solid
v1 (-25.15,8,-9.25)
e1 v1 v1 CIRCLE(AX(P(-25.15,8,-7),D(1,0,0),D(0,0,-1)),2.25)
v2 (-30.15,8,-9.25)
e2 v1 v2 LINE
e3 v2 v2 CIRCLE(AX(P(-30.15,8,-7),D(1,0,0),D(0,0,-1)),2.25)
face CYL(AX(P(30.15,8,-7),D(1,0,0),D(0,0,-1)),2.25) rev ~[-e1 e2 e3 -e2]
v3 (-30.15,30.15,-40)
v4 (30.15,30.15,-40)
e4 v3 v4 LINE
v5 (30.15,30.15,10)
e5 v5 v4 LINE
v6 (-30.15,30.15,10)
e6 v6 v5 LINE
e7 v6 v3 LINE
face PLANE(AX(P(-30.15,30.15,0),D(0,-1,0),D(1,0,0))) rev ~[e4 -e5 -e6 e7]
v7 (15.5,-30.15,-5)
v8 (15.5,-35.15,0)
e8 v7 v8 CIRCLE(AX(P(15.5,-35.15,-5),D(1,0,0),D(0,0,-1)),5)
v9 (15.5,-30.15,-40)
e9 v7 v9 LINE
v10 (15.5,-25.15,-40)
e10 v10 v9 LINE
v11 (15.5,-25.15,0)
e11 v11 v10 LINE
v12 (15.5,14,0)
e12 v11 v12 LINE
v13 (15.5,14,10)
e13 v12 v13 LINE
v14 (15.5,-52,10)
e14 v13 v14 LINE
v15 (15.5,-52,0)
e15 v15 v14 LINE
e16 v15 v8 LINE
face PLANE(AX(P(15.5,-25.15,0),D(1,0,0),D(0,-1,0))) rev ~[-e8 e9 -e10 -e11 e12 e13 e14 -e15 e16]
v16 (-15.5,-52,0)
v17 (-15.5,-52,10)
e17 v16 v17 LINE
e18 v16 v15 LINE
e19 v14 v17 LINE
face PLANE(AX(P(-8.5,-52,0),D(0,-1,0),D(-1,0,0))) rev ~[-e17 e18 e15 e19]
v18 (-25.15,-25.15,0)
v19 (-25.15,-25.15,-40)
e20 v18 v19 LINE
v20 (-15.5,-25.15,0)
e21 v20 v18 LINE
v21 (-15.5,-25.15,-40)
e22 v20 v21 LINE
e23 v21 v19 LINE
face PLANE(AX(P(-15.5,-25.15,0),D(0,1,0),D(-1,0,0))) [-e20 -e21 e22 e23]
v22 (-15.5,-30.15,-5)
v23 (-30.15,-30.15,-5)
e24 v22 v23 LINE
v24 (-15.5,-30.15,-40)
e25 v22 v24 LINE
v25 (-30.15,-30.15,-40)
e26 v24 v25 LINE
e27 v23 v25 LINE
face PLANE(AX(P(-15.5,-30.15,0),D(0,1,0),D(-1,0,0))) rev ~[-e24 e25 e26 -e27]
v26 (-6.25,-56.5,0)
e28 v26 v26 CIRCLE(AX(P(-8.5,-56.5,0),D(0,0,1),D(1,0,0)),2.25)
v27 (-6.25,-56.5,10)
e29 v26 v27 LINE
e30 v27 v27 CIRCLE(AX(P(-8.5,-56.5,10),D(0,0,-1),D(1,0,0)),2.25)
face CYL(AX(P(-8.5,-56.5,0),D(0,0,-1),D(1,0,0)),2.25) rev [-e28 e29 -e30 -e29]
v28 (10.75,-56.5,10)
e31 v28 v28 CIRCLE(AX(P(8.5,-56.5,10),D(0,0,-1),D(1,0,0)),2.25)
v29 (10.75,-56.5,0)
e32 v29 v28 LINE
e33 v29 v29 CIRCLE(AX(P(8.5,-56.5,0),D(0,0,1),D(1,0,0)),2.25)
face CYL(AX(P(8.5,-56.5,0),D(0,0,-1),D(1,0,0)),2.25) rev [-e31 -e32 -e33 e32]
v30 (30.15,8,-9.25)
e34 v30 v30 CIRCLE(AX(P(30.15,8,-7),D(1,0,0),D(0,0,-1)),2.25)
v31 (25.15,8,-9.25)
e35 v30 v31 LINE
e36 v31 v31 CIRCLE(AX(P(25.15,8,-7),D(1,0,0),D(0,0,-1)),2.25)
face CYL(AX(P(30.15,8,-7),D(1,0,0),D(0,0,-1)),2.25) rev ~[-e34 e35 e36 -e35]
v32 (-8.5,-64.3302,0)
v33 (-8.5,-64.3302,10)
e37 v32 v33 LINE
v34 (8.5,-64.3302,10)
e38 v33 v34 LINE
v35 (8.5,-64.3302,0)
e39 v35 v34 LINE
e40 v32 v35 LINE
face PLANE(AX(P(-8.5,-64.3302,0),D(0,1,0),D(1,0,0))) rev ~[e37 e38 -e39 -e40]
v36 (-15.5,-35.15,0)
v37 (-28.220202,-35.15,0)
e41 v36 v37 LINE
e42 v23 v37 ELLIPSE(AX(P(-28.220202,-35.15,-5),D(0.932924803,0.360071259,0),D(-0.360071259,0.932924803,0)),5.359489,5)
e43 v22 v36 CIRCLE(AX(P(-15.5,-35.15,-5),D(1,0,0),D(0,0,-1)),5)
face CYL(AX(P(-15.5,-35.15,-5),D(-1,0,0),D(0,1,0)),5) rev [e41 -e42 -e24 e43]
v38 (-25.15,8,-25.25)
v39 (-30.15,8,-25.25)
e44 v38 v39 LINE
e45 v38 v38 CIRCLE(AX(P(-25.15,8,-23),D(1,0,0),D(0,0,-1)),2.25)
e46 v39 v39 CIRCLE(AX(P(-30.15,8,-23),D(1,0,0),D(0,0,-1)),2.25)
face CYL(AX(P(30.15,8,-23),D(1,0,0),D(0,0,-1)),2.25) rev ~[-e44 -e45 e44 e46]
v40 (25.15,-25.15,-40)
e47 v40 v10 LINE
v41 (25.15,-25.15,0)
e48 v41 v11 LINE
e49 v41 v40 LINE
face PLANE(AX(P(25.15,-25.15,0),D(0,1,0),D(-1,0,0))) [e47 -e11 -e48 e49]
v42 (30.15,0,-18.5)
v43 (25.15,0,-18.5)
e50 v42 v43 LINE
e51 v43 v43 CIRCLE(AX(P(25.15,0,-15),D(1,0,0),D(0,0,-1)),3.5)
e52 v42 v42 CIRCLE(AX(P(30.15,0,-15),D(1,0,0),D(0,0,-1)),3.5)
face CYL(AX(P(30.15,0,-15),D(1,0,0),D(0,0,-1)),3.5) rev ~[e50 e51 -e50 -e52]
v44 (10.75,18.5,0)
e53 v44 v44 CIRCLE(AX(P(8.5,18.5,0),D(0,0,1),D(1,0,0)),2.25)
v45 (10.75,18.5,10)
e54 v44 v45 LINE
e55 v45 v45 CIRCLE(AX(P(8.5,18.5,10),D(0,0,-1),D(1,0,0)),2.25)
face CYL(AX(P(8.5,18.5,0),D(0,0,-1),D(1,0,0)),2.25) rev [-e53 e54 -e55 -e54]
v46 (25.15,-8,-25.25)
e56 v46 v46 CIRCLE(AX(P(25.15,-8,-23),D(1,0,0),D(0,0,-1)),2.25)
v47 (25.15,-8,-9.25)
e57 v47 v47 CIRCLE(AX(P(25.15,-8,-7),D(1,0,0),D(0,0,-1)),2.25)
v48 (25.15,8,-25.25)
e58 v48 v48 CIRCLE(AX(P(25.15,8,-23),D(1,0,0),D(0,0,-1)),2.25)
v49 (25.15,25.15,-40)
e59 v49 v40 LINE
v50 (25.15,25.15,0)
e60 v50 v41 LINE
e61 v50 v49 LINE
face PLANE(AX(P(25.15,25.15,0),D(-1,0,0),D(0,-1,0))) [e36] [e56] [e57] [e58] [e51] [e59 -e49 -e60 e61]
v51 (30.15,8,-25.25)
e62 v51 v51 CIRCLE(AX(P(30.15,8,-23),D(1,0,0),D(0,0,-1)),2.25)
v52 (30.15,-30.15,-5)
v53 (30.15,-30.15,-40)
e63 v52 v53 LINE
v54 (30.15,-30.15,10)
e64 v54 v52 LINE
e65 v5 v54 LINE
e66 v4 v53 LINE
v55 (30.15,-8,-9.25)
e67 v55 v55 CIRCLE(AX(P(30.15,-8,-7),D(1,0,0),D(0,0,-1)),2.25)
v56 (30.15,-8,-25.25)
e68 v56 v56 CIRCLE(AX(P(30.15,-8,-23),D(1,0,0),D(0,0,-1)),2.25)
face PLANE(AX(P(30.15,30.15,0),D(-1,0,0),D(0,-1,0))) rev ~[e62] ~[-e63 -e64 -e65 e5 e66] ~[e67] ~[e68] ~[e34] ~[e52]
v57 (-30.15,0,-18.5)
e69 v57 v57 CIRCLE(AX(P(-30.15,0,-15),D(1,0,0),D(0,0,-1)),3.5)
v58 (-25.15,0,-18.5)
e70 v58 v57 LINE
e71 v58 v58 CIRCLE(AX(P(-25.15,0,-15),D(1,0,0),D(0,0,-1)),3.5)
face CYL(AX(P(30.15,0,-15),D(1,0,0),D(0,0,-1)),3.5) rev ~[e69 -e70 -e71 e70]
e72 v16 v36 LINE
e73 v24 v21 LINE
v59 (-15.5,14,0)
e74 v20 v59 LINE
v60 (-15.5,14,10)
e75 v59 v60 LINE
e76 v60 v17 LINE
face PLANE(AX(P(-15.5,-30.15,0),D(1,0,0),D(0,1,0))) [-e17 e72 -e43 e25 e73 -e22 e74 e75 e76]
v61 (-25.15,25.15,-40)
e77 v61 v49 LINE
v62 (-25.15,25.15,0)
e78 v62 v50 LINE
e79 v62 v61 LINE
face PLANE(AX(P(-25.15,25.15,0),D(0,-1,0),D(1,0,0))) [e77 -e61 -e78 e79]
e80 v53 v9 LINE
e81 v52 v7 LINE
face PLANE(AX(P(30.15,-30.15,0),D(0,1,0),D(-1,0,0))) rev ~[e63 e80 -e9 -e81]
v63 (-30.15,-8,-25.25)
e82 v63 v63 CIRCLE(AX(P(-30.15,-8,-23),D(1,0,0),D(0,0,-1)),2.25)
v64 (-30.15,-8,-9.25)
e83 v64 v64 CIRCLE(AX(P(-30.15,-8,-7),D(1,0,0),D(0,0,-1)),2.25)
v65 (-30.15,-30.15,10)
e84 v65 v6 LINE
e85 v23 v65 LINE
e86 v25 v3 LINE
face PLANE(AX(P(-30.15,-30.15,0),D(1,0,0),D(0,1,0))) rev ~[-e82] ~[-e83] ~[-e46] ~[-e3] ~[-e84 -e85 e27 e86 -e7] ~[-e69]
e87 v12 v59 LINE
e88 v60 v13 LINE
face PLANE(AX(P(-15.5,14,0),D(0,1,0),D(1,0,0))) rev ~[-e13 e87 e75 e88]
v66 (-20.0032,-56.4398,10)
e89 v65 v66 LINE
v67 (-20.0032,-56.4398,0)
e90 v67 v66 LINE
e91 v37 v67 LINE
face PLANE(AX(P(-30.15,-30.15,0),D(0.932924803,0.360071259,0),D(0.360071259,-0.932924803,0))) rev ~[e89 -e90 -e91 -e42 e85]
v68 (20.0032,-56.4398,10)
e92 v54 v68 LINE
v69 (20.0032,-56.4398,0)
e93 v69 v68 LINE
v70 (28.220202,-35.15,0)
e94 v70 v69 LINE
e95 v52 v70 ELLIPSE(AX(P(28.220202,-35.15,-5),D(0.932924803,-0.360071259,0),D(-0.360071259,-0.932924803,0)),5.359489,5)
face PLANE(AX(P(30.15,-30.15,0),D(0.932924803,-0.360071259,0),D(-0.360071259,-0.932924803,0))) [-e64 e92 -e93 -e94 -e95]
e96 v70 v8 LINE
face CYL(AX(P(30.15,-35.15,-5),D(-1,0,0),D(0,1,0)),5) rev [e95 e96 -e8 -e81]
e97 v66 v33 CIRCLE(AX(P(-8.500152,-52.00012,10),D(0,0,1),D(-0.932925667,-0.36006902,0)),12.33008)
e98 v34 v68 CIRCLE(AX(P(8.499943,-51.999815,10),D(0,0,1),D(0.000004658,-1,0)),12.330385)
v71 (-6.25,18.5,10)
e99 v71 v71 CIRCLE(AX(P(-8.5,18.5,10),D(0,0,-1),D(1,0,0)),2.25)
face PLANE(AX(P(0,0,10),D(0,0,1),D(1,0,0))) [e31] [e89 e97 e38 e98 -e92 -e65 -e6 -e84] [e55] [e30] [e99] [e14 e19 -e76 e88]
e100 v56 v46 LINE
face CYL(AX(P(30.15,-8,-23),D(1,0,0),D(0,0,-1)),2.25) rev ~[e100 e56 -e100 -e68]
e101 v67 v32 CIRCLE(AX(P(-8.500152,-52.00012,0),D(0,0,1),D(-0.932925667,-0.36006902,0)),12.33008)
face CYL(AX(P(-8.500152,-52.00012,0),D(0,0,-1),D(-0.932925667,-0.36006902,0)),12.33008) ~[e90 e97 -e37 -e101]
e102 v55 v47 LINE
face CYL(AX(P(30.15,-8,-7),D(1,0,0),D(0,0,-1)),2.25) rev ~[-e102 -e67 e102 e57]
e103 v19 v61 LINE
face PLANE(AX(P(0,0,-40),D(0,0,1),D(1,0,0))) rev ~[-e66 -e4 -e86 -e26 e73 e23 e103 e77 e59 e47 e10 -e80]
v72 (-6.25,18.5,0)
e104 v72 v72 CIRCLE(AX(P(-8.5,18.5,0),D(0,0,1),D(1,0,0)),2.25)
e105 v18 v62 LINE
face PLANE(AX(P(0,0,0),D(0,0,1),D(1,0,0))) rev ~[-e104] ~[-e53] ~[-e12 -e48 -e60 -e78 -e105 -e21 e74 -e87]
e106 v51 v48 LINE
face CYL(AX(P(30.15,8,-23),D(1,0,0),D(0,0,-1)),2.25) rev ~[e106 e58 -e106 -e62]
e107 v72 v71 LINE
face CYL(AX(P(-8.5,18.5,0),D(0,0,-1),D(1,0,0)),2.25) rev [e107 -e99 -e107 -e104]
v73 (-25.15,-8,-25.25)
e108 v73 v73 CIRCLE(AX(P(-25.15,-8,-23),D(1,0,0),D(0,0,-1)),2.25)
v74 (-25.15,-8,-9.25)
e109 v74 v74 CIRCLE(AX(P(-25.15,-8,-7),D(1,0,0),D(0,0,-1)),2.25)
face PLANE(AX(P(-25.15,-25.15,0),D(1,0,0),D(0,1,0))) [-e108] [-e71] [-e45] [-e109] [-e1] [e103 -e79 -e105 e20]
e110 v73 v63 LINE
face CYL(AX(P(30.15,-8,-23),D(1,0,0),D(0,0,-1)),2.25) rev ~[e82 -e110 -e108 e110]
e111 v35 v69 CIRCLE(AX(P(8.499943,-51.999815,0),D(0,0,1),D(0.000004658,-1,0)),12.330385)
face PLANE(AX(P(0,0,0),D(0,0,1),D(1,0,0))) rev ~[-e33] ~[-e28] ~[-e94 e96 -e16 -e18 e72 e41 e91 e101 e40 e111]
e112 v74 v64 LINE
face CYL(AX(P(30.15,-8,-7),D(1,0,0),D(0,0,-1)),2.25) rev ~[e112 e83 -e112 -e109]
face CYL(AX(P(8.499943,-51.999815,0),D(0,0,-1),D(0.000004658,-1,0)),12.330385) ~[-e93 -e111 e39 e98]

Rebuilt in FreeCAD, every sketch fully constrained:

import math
import FreeCAD as App
import Part
import Sketcher


def edges_at(feature, points):
    """Names of the edges that pass closest to the given points."""
    edges = feature.Shape.Edges
    near = lambda p: min(range(len(edges)), key=lambda i: edges[i].distToShape(Part.Vertex(*p))[0])
    return sorted({f"Edge{near(p) + 1}" for p in points})

doc = App.newDocument("Part")
params = doc.addObject("Spreadsheet::Sheet", "Params")
for row, (alias, value) in enumerate([
    ("sketch1_width", "50.3 mm"),
    ("sketch1_width2", "60.3 mm"),
    ("pad1_length", "40 mm"),
    ("sketch2_diameter", "4.5 mm"),
    ("sketch2_width", "17 mm"),
    ("sketch2_width2", "31 mm"),
    ("sketch2_height", "66 mm"),
    ("sketch2_width3", "60.3 mm"),
    ("pad2_length", "10 mm"),
    ("fillet_radius", "5 mm"),
    ("sketch3_diameter", "7 mm"),
    ("sketch3_diameter2", "4.5 mm"),
    ("pocket1_length", "65 mm"),
], start=1):
    params.set(f"A{row}", alias)
    params.set(f"B{row}", "=" + value)
    params.setAlias(f"B{row}", alias)

body = doc.addObject("PartDesign::Body", "Body")

sketch1 = body.newObject("Sketcher::SketchObject", "Sketch")
sketch1.AttachmentSupport = (doc.getObject("XY_Plane"), [""])
sketch1.MapMode = "FlatFace"
sketch1.addGeometry([
    Part.LineSegment(App.Vector(-25.15, -25.15, 0), App.Vector(-25.15, 25.15, 0)),
    Part.LineSegment(App.Vector(-25.15, 25.15, 0), App.Vector(25.15, 25.15, 0)),
    Part.LineSegment(App.Vector(25.15, 25.15, 0), App.Vector(25.15, -25.15, 0)),
    Part.LineSegment(App.Vector(25.15, -25.15, 0), App.Vector(15.5, -25.15, 0)),
    Part.LineSegment(App.Vector(15.5, -25.15, 0), App.Vector(15.5, -30.15, 0)),
    Part.LineSegment(App.Vector(15.5, -30.15, 0), App.Vector(30.15, -30.15, 0)),
    Part.LineSegment(App.Vector(30.15, -30.15, 0), App.Vector(30.15, 30.15, 0)),
    Part.LineSegment(App.Vector(30.15, 30.15, 0), App.Vector(-30.15, 30.15, 0)),
    Part.LineSegment(App.Vector(-30.15, 30.15, 0), App.Vector(-30.15, -30.15, 0)),
    Part.LineSegment(App.Vector(-30.15, -30.15, 0), App.Vector(-15.5, -30.15, 0)),
    Part.LineSegment(App.Vector(-15.5, -30.15, 0), App.Vector(-15.5, -25.15, 0)),
    Part.LineSegment(App.Vector(-15.5, -25.15, 0), App.Vector(-25.15, -25.15, 0)),
], False)
sketch1.addConstraint([
    Sketcher.Constraint("Coincident", 0, 2, 1, 1),
    Sketcher.Constraint("Coincident", 1, 2, 2, 1),
    Sketcher.Constraint("Coincident", 2, 2, 3, 1),
    Sketcher.Constraint("Coincident", 3, 2, 4, 1),
    Sketcher.Constraint("Coincident", 4, 2, 5, 1),
    Sketcher.Constraint("Coincident", 5, 2, 6, 1),
    Sketcher.Constraint("Coincident", 6, 2, 7, 1),
    Sketcher.Constraint("Coincident", 7, 2, 8, 1),
    Sketcher.Constraint("Coincident", 8, 2, 9, 1),
    Sketcher.Constraint("Coincident", 9, 2, 10, 1),
    Sketcher.Constraint("Coincident", 10, 2, 11, 1),
    Sketcher.Constraint("Coincident", 11, 2, 0, 1),
    Sketcher.Constraint("Vertical", 0),
    Sketcher.Constraint("Horizontal", 1),
    Sketcher.Constraint("Vertical", 2),
    Sketcher.Constraint("Horizontal", 3),
    Sketcher.Constraint("Vertical", 4),
    Sketcher.Constraint("Horizontal", 5),
    Sketcher.Constraint("Vertical", 6),
    Sketcher.Constraint("Horizontal", 7),
    Sketcher.Constraint("Vertical", 8),
    Sketcher.Constraint("Horizontal", 9),
    Sketcher.Constraint("Vertical", 10),
    Sketcher.Constraint("Horizontal", 11),
    Sketcher.Constraint("Symmetric", 0, 2, 2, 2, -1, 1),
    Sketcher.Constraint("Symmetric", 5, 2, 7, 2, -1, 1),
    Sketcher.Constraint("Symmetric", 4, 2, 9, 2, -2),
    Sketcher.Constraint("Horizontal", 3, 2, 10, 2),
    Sketcher.Constraint("Equal", 1, 0),
    Sketcher.Constraint("Equal", 7, 6),
    Sketcher.Constraint("DistanceX", 1, 1, 1, 2, 50.3),
    Sketcher.Constraint("DistanceX", 7, 2, 7, 1, 60.3),
    Sketcher.Constraint("DistanceX", 9, 2, 4, 2, 31.0),
])
sketch1.setExpression("Constraints[30]", "Params.sketch1_width")
sketch1.setExpression("Constraints[31]", "Params.sketch1_width2")
pad1 = body.newObject("PartDesign::Pad", "Pad")
pad1.Profile = sketch1
pad1.setExpression("Length", "Params.pad1_length")
pad1.Reversed = True

sketch2 = body.newObject("Sketcher::SketchObject", "Sketch001")
sketch2.AttachmentSupport = (doc.getObject("XY_Plane"), [""])
sketch2.MapMode = "FlatFace"
sketch2.addGeometry([
    Part.LineSegment(App.Vector(-30.15, 30.15, 0), App.Vector(-30.15, -30.15, 0)),
    Part.LineSegment(App.Vector(-30.15, -30.15, 0), App.Vector(-20.0032, -56.4398, 0)),
    Part.ArcOfCircle(Part.Circle(App.Vector(-8.5, -52, 0), App.Vector(0, 0, 1), 12.330265), math.radians(-158.895298), math.radians(-90)),
    Part.LineSegment(App.Vector(-8.5, -64.3302, 0), App.Vector(8.5, -64.3302, 0)),
    Part.ArcOfCircle(Part.Circle(App.Vector(8.5, -52, 0), App.Vector(0, 0, 1), 12.3302), math.radians(-90), math.radians(-21.104702)),
    Part.LineSegment(App.Vector(20.0032, -56.4398, 0), App.Vector(30.15, -30.15, 0)),
    Part.LineSegment(App.Vector(30.15, -30.15, 0), App.Vector(30.15, 30.15, 0)),
    Part.LineSegment(App.Vector(30.15, 30.15, 0), App.Vector(-30.15, 30.15, 0)),
    Part.LineSegment(App.Vector(-15.5, 14, 0), App.Vector(15.5, 14, 0)),
    Part.LineSegment(App.Vector(15.5, 14, 0), App.Vector(15.5, -52, 0)),
    Part.LineSegment(App.Vector(15.5, -52, 0), App.Vector(-15.5, -52, 0)),
    Part.LineSegment(App.Vector(-15.5, -52, 0), App.Vector(-15.5, 14, 0)),
    Part.Circle(App.Vector(8.5, 18.5, 0), App.Vector(0, 0, 1), 2.25),
    Part.Circle(App.Vector(-8.5, 18.5, 0), App.Vector(0, 0, 1), 2.25),
    Part.Circle(App.Vector(-8.5, -56.5, 0), App.Vector(0, 0, 1), 2.25),
    Part.Circle(App.Vector(8.5, -56.5, 0), App.Vector(0, 0, 1), 2.25),
], False)
sketch2.addConstraint([
    Sketcher.Constraint("Coincident", 0, 2, 1, 1),
    Sketcher.Constraint("Tangent", 1, 2, 2, 1),
    Sketcher.Constraint("Tangent", 2, 2, 3, 1),
    Sketcher.Constraint("Tangent", 3, 2, 4, 1),
    Sketcher.Constraint("Tangent", 4, 2, 5, 1),
    Sketcher.Constraint("Coincident", 5, 2, 6, 1),
    Sketcher.Constraint("Coincident", 6, 2, 7, 1),
    Sketcher.Constraint("Coincident", 7, 2, 0, 1),
    Sketcher.Constraint("Coincident", 8, 2, 9, 1),
    Sketcher.Constraint("Coincident", 9, 2, 10, 1),
    Sketcher.Constraint("Coincident", 10, 2, 11, 1),
    Sketcher.Constraint("Coincident", 11, 2, 8, 1),
    Sketcher.Constraint("Vertical", 0),
    Sketcher.Constraint("Horizontal", 3),
    Sketcher.Constraint("Vertical", 6),
    Sketcher.Constraint("Horizontal", 7),
    Sketcher.Constraint("Horizontal", 8),
    Sketcher.Constraint("Vertical", 9),
    Sketcher.Constraint("Horizontal", 10),
    Sketcher.Constraint("Vertical", 11),
    Sketcher.Constraint("Equal", 2, 4),
    Sketcher.Constraint("Equal", 12, 13),
    Sketcher.Constraint("Equal", 13, 14),
    Sketcher.Constraint("Equal", 14, 15),
    Sketcher.Constraint("Symmetric", 0, 2, 6, 2, -1, 1),
    Sketcher.Constraint("Symmetric", 12, 3, 13, 3, -2),
    Sketcher.Constraint("Symmetric", 14, 3, 15, 3, -2),
    Sketcher.Constraint("Symmetric", 1, 2, 4, 2, -2),
    Sketcher.Constraint("Horizontal", 4, 3, 9, 2),
    Sketcher.Constraint("Vertical", 4, 3, 12, 3),
    Sketcher.Constraint("Vertical", 13, 3, 14, 3),
    Sketcher.Constraint("Equal", 7, 0),
    Sketcher.Constraint("Diameter", 12, 4.5),
    Sketcher.Constraint("DistanceX", 3, 1, 3, 2, 17.0),
    Sketcher.Constraint("DistanceX", 8, 1, 8, 2, 31.0),
    Sketcher.Constraint("DistanceY", 9, 2, 9, 1, 66.0),
    Sketcher.Constraint("DistanceX", 7, 2, 7, 1, 60.3),
    Sketcher.Constraint("DistanceY", 14, 3, 13, 3, 75.0),
    Sketcher.Constraint("DistanceY", 14, 3, 2, 3, 4.5),
    Sketcher.Constraint("DistanceY", 2, 3, -1, 1, 52.0),
    Sketcher.Constraint("DistanceX", 12, 3, 8, 2, 7.0),
    Sketcher.Constraint("Radius", 2, 12.3303),
])
sketch2.setExpression("Constraints[32]", "Params.sketch2_diameter")
sketch2.setExpression("Constraints[33]", "Params.sketch2_width")
sketch2.setExpression("Constraints[34]", "Params.sketch2_width2")
sketch2.setExpression("Constraints[35]", "Params.sketch2_height")
sketch2.setExpression("Constraints[36]", "Params.sketch2_width3")
pad2 = body.newObject("PartDesign::Pad", "Pad001")
pad2.Profile = sketch2
pad2.setExpression("Length", "Params.pad2_length")
doc.recompute()

fillet = body.newObject("PartDesign::Fillet", "Fillet")
fillet.Base = (pad2, edges_at(pad2, [(22.825, -30.15, 0), (-22.825, -30.15, 0)]))
fillet.setExpression("Radius", "Params.fillet_radius")

sketch3 = body.newObject("Sketcher::SketchObject", "Sketch002")
sketch3.AttachmentSupport = (doc.getObject("YZ_Plane"), [""])
sketch3.MapMode = "FlatFace"
sketch3.AttachmentOffset = App.Placement(App.Vector(0, 0, 30.15), App.Rotation())
sketch3.addGeometry([
    Part.Circle(App.Vector(0, -15, 0), App.Vector(0, 0, 1), 3.5),
    Part.Circle(App.Vector(8, -7, 0), App.Vector(0, 0, 1), 2.25),
    Part.Circle(App.Vector(8, -23, 0), App.Vector(0, 0, 1), 2.25),
    Part.Circle(App.Vector(-8, -23, 0), App.Vector(0, 0, 1), 2.25),
    Part.Circle(App.Vector(-8, -7, 0), App.Vector(0, 0, 1), 2.25),
], False)
sketch3.addConstraint([
    Sketcher.Constraint("Equal", 1, 2),
    Sketcher.Constraint("Equal", 2, 3),
    Sketcher.Constraint("Equal", 3, 4),
    Sketcher.Constraint("Symmetric", 2, 3, 3, 3, -2),
    Sketcher.Constraint("Symmetric", 1, 3, 4, 3, -2),
    Sketcher.Constraint("PointOnObject", 0, 3, -2),
    Sketcher.Constraint("Vertical", 1, 3, 2, 3),
    Sketcher.Constraint("Diameter", 0, 7.0),
    Sketcher.Constraint("Diameter", 1, 4.5),
    Sketcher.Constraint("DistanceY", 1, 3, -1, 1, 7.0),
    Sketcher.Constraint("DistanceY", 2, 3, 1, 3, 16.0),
    Sketcher.Constraint("DistanceX", 3, 3, 2, 3, 16.0),
    Sketcher.Constraint("DistanceY", 0, 3, -1, 1, 15.0),
])
sketch3.setExpression("Constraints[7]", "Params.sketch3_diameter")
sketch3.setExpression("Constraints[8]", "Params.sketch3_diameter2")
pocket1 = body.newObject("PartDesign::Pocket", "Pocket")
pocket1.Profile = sketch3
pocket1.setExpression("Length", "Params.pocket1_length")

doc.recompute()
